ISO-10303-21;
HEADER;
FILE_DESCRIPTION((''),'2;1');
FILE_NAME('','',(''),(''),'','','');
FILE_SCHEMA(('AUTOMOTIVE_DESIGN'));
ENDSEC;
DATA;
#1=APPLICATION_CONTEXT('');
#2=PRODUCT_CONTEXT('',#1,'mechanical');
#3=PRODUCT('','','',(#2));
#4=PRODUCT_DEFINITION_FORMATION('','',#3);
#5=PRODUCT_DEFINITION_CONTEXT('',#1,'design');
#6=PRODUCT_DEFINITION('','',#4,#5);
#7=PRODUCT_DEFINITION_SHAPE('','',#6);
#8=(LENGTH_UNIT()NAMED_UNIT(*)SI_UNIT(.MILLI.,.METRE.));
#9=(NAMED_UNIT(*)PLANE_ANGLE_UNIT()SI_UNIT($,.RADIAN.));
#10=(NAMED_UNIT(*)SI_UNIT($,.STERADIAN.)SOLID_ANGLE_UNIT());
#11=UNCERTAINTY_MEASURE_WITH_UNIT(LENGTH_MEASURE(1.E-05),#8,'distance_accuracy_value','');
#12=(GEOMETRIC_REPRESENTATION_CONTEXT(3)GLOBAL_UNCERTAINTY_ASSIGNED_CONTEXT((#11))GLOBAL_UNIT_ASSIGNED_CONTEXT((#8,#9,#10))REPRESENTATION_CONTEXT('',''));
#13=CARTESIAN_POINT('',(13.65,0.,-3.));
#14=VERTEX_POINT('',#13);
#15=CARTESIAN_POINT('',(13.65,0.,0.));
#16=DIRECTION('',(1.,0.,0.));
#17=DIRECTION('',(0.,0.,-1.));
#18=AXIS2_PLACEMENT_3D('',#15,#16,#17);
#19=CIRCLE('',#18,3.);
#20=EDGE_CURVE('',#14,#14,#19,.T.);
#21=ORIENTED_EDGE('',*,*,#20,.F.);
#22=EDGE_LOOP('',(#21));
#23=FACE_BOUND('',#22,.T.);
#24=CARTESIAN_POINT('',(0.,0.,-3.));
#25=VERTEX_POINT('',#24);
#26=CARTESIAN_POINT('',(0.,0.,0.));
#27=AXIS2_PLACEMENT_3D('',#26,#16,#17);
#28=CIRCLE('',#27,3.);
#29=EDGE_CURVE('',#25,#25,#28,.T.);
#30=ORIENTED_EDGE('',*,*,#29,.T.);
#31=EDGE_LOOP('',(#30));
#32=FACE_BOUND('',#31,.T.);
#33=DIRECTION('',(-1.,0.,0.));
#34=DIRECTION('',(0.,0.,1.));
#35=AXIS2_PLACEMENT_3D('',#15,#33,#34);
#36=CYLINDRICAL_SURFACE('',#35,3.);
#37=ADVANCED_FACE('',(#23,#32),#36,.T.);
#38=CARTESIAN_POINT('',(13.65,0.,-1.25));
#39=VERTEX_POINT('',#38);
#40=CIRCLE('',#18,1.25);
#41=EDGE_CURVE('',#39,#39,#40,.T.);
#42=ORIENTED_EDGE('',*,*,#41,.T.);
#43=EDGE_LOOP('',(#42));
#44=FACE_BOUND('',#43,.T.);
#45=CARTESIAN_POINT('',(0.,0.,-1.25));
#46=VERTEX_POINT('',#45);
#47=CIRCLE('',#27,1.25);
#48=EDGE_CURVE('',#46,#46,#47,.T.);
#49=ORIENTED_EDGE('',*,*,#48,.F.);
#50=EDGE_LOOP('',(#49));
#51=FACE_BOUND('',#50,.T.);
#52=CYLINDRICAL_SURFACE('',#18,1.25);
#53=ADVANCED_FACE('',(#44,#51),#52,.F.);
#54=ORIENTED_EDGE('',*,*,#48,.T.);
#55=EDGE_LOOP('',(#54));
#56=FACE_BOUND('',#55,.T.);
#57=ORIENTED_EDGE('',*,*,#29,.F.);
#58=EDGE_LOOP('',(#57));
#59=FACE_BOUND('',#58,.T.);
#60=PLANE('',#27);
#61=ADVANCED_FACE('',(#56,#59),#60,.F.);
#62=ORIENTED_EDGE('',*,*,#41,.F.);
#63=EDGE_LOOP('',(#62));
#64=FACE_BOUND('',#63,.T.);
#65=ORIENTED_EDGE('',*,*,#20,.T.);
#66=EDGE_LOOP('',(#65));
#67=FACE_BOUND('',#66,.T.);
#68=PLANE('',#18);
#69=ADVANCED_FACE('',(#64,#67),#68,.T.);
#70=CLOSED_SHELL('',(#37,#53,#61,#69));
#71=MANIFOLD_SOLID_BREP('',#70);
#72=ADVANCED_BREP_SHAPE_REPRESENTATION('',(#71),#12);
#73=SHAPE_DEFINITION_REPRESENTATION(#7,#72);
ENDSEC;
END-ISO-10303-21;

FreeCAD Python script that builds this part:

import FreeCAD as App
import Part
import Sketcher

doc = App.newDocument("Part")
params = doc.addObject("Spreadsheet::Sheet", "Params")
for row, (alias, value) in enumerate([
    ("sketch1_diameter", "6 mm"),
    ("pad1_length", "13.65 mm"),
    ("sketch2_diameter", "2.5 mm"),
    ("hole_diameter", "2.5 mm"),
], start=1):
    params.set(f"A{row}", alias)
    params.set(f"B{row}", "=" + value)
    params.setAlias(f"B{row}", alias)

body = doc.addObject("PartDesign::Body", "Body")

sketch1 = doc.addObject("Sketcher::SketchObject", "Sketch")
body.addObject(sketch1)
sketch1.AttachmentSupport = (doc.YZ_Plane, [""])
sketch1.MapMode = "FlatFace"
sketch1.addGeometry(Part.Circle(App.Vector(0, 0, 0), App.Vector(0, 0, 1), 3), False)
sketch1.addConstraint([
    Sketcher.Constraint("Coincident", 0, 3, -1, 1),
    Sketcher.Constraint("Diameter", 0, 6.0),
])
sketch1.setExpression("Constraints[1]", "Params.sketch1_diameter")
pad1 = doc.addObject("PartDesign::Pad", "Pad")
body.addObject(pad1)
pad1.Profile = sketch1
pad1.setExpression("Length", "Params.pad1_length")

sketch2 = doc.addObject("Sketcher::SketchObject", "Sketch001")
body.addObject(sketch2)
sketch2.AttachmentSupport = (doc.YZ_Plane, [""])
sketch2.MapMode = "FlatFace"
sketch2.AttachmentOffset = App.Placement(App.Vector(0, 0, 13.65), App.Rotation())
sketch2.addGeometry(Part.Circle(App.Vector(0, 0, 0), App.Vector(0, 0, 1), 1.25), False)
sketch2.addConstraint([
    Sketcher.Constraint("Coincident", 0, 3, -1, 1),
    Sketcher.Constraint("Diameter", 0, 2.5),
])
sketch2.setExpression("Constraints[1]", "Params.sketch2_diameter")
doc.recompute()
hole = doc.addObject("PartDesign::Hole", "Hole")
body.addObject(hole)
hole.Profile = sketch2
hole.ThreadType = "None"
hole.setExpression("Diameter", "Params.hole_diameter")
hole.DepthType = "ThroughAll"

doc.recompute()
